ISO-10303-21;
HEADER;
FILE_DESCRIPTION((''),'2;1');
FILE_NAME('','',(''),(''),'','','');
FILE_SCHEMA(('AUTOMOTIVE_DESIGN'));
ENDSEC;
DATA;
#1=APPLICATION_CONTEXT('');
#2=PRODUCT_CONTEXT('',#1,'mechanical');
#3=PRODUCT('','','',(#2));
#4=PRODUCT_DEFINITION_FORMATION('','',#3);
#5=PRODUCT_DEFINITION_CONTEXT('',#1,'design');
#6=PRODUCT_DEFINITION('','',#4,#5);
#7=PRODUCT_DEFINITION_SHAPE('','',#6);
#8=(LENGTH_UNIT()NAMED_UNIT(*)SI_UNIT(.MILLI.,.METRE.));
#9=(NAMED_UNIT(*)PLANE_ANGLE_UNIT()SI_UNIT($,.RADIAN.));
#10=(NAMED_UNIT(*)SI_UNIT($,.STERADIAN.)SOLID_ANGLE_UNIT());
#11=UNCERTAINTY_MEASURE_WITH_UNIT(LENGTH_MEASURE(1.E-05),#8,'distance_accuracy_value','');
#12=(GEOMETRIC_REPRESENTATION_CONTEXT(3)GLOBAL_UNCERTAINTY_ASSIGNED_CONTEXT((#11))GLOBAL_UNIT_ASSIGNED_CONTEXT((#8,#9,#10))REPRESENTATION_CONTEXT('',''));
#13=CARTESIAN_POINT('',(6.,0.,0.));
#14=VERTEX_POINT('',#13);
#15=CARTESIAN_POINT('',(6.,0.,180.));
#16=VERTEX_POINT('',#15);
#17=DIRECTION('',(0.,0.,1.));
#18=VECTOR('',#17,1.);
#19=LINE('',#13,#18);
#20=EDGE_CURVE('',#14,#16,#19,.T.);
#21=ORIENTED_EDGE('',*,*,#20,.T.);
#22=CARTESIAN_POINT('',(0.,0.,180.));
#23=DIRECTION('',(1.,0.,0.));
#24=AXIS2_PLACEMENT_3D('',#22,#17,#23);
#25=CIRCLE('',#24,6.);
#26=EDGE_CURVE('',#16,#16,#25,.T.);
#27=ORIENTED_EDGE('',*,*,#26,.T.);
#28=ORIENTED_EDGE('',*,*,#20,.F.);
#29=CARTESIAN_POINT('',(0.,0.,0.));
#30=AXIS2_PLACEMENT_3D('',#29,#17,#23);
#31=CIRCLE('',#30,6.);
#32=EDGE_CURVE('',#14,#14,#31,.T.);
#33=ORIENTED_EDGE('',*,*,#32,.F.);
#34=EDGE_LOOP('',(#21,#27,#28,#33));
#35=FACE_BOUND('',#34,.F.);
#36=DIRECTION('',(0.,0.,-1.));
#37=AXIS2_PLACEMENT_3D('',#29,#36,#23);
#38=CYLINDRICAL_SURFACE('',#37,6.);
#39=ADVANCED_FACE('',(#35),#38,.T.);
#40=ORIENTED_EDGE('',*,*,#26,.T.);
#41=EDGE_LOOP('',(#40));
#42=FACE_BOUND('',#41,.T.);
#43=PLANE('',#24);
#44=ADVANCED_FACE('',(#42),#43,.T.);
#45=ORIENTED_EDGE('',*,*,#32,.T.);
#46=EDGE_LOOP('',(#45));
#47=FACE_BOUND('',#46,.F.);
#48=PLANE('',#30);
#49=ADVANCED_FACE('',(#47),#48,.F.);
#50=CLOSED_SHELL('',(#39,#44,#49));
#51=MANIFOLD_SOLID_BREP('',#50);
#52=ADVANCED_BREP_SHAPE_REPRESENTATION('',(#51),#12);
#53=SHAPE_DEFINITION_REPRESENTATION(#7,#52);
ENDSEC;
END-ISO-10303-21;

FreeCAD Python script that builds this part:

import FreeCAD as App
import Part
import Sketcher

V = App.Vector
Q = App.Units.Quantity

doc = App.newDocument("Part")
body = doc.addObject("PartDesign::Body", "Body")

# Sketch on XY plane
sketch1 = body.newObject("Sketcher::SketchObject", "Sketch")
sketch1.AttachmentSupport = (doc.getObject("XY_Plane"), [""])
sketch1.MapMode = "FlatFace"
sketch1.addGeometry(Part.Circle(V(0, 0, 0), V(0, 0, 1), 6), False)
sketch1.addConstraint([
    Sketcher.Constraint("Coincident", 0, 3, -1, 1),
    Sketcher.Constraint("Diameter", 0, Q("12 mm")),
])
pad1 = body.newObject("PartDesign::Pad", "Pad")
pad1.Profile = sketch1
pad1.Length = 180

doc.recompute()
